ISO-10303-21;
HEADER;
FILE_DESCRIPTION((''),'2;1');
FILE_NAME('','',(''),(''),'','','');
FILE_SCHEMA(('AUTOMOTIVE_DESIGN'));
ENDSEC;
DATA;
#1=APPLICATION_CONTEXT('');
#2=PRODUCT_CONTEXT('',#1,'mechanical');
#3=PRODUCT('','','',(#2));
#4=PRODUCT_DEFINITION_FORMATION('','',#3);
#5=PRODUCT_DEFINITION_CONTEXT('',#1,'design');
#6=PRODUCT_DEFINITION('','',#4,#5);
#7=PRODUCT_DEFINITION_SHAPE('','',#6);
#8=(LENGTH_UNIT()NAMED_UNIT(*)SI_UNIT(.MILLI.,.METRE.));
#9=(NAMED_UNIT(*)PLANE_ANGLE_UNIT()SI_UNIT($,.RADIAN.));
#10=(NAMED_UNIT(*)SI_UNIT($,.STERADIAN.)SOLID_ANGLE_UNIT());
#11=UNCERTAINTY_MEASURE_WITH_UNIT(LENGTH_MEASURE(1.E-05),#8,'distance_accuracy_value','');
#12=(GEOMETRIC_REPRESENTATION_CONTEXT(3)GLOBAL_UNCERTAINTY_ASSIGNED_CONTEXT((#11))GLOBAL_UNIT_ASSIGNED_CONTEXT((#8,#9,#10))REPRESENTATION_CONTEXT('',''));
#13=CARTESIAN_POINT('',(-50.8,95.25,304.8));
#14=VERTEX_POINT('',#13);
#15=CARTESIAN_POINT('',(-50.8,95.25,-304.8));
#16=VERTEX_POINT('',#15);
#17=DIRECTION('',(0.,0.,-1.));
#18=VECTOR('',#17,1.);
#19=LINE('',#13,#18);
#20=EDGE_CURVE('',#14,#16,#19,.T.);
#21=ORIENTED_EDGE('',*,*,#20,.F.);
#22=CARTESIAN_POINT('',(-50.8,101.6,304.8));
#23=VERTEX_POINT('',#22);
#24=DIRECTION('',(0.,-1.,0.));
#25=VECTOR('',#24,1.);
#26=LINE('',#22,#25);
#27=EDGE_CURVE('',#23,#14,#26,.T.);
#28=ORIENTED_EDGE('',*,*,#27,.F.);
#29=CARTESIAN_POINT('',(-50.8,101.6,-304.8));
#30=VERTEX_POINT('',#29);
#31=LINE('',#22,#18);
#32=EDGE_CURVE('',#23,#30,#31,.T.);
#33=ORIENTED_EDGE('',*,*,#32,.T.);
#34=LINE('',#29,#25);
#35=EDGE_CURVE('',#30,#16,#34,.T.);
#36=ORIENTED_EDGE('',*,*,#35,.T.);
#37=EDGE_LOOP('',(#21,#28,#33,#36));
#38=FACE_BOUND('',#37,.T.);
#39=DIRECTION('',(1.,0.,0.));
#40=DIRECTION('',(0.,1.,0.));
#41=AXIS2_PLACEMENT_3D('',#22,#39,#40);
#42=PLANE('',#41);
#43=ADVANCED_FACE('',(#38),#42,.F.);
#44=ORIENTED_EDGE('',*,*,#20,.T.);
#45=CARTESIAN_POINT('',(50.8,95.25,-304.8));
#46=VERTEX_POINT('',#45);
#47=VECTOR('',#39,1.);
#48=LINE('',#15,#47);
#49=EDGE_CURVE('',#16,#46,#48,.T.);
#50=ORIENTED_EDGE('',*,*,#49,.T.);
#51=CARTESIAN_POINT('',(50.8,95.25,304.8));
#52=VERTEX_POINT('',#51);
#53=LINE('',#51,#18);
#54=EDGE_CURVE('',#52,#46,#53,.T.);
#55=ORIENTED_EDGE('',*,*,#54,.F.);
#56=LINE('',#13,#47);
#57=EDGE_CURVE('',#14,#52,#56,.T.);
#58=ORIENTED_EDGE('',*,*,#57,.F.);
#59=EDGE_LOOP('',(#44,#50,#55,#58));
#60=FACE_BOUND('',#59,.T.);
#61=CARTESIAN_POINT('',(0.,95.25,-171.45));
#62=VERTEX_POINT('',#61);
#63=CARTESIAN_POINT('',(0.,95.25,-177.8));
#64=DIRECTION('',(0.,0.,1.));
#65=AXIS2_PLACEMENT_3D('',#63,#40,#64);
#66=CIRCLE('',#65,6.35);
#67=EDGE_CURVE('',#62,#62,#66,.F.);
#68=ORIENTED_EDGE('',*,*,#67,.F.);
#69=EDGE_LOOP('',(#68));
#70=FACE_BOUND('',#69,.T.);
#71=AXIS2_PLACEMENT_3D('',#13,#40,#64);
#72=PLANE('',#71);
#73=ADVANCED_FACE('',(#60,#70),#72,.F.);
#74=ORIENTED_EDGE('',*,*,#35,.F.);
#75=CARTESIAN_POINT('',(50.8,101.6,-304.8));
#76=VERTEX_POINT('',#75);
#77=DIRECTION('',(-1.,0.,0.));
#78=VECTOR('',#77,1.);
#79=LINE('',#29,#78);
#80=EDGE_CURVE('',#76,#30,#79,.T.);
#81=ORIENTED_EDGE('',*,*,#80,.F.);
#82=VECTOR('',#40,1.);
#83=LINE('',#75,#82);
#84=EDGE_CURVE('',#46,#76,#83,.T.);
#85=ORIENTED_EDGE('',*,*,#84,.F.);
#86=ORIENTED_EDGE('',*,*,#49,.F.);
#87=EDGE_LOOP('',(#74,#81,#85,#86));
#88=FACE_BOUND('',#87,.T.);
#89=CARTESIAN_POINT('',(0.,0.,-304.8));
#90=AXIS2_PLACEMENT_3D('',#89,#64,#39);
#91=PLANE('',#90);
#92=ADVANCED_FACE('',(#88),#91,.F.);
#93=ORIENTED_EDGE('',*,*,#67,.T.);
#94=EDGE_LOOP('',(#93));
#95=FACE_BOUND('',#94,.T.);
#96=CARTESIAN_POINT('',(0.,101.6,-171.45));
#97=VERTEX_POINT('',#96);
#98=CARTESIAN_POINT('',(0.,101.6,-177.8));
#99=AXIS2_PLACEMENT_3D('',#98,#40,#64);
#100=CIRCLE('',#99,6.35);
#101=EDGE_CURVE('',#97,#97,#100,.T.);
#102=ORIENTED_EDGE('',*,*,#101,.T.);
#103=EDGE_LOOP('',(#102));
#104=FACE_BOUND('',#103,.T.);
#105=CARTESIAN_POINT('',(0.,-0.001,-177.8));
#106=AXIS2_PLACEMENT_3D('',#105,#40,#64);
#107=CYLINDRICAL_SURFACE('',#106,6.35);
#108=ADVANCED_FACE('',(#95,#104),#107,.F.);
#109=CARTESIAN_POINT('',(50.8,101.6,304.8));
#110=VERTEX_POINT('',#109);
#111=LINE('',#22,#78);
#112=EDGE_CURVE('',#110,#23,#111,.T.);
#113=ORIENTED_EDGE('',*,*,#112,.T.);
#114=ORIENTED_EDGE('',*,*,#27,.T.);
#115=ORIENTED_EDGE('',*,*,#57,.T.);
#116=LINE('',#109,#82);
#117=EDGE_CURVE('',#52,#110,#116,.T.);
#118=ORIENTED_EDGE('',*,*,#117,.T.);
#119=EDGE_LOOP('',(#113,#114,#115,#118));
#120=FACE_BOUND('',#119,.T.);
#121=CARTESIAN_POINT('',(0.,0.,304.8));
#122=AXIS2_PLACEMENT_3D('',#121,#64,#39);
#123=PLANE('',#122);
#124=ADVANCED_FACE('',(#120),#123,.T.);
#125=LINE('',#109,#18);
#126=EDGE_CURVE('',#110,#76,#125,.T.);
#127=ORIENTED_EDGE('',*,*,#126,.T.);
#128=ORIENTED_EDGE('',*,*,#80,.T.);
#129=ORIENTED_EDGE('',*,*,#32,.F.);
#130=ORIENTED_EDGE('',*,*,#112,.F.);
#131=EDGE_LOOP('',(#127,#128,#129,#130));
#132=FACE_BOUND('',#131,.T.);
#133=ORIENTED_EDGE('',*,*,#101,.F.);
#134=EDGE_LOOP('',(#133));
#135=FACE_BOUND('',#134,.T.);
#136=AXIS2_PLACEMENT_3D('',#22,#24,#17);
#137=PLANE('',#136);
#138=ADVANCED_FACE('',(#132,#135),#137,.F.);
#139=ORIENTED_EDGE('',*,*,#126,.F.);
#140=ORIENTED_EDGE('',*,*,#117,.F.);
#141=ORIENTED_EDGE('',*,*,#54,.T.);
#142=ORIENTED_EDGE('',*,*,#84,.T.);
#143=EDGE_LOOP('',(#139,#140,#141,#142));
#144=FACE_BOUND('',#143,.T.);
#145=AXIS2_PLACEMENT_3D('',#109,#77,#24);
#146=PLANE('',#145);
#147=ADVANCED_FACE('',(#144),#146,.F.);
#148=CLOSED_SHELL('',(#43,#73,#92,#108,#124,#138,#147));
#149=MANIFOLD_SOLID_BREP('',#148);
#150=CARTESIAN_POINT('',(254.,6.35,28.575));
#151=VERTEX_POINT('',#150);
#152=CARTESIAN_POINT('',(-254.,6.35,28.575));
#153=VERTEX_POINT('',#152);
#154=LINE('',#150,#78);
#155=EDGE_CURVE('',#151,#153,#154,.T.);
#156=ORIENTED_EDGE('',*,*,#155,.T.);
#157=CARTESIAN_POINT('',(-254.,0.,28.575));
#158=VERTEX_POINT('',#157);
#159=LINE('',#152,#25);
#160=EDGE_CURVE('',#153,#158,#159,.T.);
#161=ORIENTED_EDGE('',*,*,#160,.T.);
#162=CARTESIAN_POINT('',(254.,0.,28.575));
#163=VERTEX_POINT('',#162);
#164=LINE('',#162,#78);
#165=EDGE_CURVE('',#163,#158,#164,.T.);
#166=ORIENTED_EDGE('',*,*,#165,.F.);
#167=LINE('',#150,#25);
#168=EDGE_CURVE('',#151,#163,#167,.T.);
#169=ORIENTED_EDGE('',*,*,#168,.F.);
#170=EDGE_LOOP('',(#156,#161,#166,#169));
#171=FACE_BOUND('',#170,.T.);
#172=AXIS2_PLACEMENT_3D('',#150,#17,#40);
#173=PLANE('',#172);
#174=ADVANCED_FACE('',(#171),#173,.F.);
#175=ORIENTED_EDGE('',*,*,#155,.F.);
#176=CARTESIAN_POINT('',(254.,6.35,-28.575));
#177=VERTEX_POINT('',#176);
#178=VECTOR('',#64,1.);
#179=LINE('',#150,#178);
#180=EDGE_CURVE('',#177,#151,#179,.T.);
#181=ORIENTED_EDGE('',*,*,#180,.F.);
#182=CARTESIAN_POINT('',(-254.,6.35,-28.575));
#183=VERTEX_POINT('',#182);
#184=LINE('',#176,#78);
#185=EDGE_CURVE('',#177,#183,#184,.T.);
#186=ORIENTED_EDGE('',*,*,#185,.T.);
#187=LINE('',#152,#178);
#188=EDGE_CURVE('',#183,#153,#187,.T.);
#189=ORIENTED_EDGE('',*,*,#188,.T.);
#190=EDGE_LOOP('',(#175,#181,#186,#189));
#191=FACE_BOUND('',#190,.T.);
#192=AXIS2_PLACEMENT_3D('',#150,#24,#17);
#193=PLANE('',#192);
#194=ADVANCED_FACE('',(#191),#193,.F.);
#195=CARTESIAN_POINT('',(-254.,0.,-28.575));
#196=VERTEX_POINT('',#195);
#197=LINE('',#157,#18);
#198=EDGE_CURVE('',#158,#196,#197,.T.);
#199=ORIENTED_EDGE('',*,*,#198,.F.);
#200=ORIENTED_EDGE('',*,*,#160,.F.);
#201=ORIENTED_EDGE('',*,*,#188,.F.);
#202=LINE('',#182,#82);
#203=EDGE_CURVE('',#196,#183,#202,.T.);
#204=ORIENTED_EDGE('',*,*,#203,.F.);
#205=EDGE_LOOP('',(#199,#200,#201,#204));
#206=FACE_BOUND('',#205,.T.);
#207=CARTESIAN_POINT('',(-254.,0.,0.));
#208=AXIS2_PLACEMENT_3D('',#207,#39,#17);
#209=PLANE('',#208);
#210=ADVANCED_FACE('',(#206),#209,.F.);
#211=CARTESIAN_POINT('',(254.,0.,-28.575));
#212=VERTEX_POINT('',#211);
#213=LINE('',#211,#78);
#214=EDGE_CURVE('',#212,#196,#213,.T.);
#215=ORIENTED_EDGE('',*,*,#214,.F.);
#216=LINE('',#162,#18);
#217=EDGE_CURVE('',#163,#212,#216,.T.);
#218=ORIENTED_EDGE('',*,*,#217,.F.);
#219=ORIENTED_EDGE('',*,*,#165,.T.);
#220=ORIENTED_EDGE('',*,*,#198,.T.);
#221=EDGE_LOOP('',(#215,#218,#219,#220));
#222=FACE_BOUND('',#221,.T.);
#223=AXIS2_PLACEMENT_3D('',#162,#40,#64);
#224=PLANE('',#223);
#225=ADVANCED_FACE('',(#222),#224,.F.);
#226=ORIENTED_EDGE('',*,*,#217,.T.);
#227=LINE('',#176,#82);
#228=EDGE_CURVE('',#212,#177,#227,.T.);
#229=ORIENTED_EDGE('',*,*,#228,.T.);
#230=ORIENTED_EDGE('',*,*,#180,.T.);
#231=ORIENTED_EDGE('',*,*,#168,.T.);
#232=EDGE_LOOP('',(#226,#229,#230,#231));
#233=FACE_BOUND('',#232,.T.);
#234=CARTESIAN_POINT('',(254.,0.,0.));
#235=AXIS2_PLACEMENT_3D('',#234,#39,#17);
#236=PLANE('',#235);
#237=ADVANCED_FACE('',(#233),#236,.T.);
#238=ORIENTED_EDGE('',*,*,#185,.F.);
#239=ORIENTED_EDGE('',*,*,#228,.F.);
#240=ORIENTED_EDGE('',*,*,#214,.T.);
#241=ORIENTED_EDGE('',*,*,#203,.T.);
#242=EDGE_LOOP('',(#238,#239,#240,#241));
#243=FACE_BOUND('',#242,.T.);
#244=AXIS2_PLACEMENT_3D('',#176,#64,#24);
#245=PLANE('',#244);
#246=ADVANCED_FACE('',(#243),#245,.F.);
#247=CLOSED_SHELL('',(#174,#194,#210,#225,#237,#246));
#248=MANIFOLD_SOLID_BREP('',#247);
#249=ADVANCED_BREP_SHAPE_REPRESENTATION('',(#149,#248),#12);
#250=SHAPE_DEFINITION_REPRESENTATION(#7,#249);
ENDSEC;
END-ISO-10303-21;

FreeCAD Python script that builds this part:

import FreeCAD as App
import Part
import Sketcher
from FreeCAD import Vector
Q = App.Units.Quantity


def add_polygon(sketch, points):
    """Adds a closed chain of lines whose ends are joined by coincident constraints."""
    first, n = sketch.GeometryCount, len(points)
    for a, b in zip(points, points[1:] + points[:1]):
        sketch.addGeometry(Part.LineSegment(App.Vector(*a, 0), App.Vector(*b, 0)), False)
    for i in range(n):
        sketch.addConstraint(Sketcher.Constraint("Coincident", first + i, 2, first + (i + 1) % n, 1))

doc = App.newDocument("Part")
body = doc.addObject("PartDesign::Body", "Body")

sketch1 = body.newObject("Sketcher::SketchObject", "Sketch")
sketch1.AttachmentSupport = (doc.getObject("YZ_Plane"), [""])
sketch1.MapMode = "FlatFace"
add_polygon(sketch1, [(6, 29), (0, 29), (0, -29), (6, -29)])
sketch1.addConstraint([
    Sketcher.Constraint("Horizontal", 0),
    Sketcher.Constraint("Vertical", 1),
    Sketcher.Constraint("Horizontal", 2),
    Sketcher.Constraint("Vertical", 3),
    Sketcher.Constraint("Symmetric", 0, 2, 1, 2, -1, 1),
    Sketcher.Constraint("DistanceX", 0, 2, 0, 1, Q("0.25 in")),
    Sketcher.Constraint("DistanceY", 1, 2, 1, 1, Q("2.25 in")),
])
pad1 = body.newObject("PartDesign::Pad", "Pad")
pad1.Profile = sketch1
pad1.Length = Q("20 in")
pad1.Midplane = True
body2 = doc.addObject("PartDesign::Body", "Body001")

sketch2 = body2.newObject("Sketcher::SketchObject", "Sketch001")
sketch2.AttachmentSupport = (doc.getObject("XY_Plane001"), [""])
sketch2.MapMode = "FlatFace"
add_polygon(sketch2, [(-51, 102), (-51, 95), (51, 95), (51, 102)])
sketch2.addConstraint([
    Sketcher.Constraint("Vertical", 0),
    Sketcher.Constraint("Horizontal", 1),
    Sketcher.Constraint("Vertical", 2),
    Sketcher.Constraint("Horizontal", 3),
    Sketcher.Constraint("DistanceX", 1, 1, 1, 2, Q("4 in")),
    Sketcher.Constraint("DistanceX", 0, 2, -1, 1, Q("2 in")),
    Sketcher.Constraint("DistanceY", -1, 1, 2, 2, Q("4 in")),
    Sketcher.Constraint("DistanceY", 0, 2, 0, 1, Q("0.25 in")),
])
pad2 = body2.newObject("PartDesign::Pad", "Pad001")
pad2.Profile = sketch2
pad2.Length = Q("24 in")
pad2.Midplane = True

sketch3 = body2.newObject("Sketcher::SketchObject", "Sketch002")
sketch3.AttachmentSupport = (doc.getObject("XZ_Plane001"), [""])
sketch3.MapMode = "FlatFace"
sketch3.AttachmentOffset = App.Placement(Vector(0, 0, -4 * 25.4), App.Rotation())
sketch3.addGeometry(Part.Circle(Vector(0, -178, 0), Vector(0, 0, 1), 6), False)
sketch3.addConstraint([
    Sketcher.Constraint("PointOnObject", 0, 3, -2),
    Sketcher.Constraint("Diameter", 0, Q("0.5 in")),
    Sketcher.Constraint("DistanceY", 0, 3, -1, 1, Q("7 in")),
])
pocket1 = body2.newObject("PartDesign::Pocket", "Pocket")
pocket1.Profile = sketch3
pocket1.Length = Q("0.25 in")
pocket1.Reversed = True

doc.recompute()
